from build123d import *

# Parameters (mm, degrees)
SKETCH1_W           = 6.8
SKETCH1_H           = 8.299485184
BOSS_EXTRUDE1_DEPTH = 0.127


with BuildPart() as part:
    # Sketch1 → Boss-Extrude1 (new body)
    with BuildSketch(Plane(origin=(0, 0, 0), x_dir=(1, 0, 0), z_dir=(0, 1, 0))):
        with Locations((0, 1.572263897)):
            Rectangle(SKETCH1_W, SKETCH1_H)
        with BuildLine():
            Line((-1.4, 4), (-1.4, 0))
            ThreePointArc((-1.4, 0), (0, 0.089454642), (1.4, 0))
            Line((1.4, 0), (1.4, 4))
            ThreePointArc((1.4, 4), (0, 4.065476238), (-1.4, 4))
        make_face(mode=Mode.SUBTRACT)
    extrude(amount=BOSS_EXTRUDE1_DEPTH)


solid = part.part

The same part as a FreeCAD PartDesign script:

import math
import FreeCAD as App
import Part
import Sketcher

V = App.Vector


def add_polygon(sketch, points):
    """Adds a closed chain of lines whose ends are joined by coincident constraints."""
    first, n = sketch.GeometryCount, len(points)
    for a, b in zip(points, points[1:] + points[:1]):
        sketch.addGeometry(Part.LineSegment(App.Vector(*a, 0), App.Vector(*b, 0)), False)
    for i in range(n):
        sketch.addConstraint(Sketcher.Constraint("Coincident", first + i, 2, first + (i + 1) % n, 1))

doc = App.newDocument("Part")
body = doc.addObject("PartDesign::Body", "Body")

# Sketch on XZ plane
sketch1 = body.newObject("Sketcher::SketchObject", "Sketch")
sketch1.AttachmentSupport = (doc.getObject("XZ_Plane"), [""])
sketch1.MapMode = "FlatFace"
add_polygon(sketch1, [(-3.4, -5.7), (-3.4, 2.6), (3.4, 2.6), (3.4, -5.7)])  # lines 0-3
sketch1.addGeometry(Part.LineSegment(V(-1.4, 0, 0), V(-1.4, -4, 0)), False)  # 4
sketch1.addGeometry(Part.ArcOfCircle(Part.Circle(V(0, 10.9, 0), V(0, 0, 1), 15), math.radians(-95.36), math.radians(-84.64)), False)  # 5
sketch1.addGeometry(Part.LineSegment(V(1.4, -4, 0), V(1.4, 0, 0)), False)  # 6
sketch1.addGeometry(Part.ArcOfCircle(Part.Circle(V(0, 10.9, 0), V(0, 0, 1), 11), math.radians(-97.31), math.radians(-82.69)), False)  # 7
sketch1.addConstraint([
    Sketcher.Constraint("Coincident", 4, 2, 5, 1),
    Sketcher.Constraint("Coincident", 5, 2, 6, 1),
    Sketcher.Constraint("Coincident", 6, 2, 7, 2),
    Sketcher.Constraint("Coincident", 7, 1, 4, 1),
    Sketcher.Constraint("Vertical", 0),
    Sketcher.Constraint("Horizontal", 1),
    Sketcher.Constraint("Vertical", 2),
    Sketcher.Constraint("Horizontal", 3),
    Sketcher.Constraint("Vertical", 4),
    Sketcher.Constraint("Vertical", 6),
    Sketcher.Constraint("Symmetric", 6, 2, 7, 1, -1, 1),
    Sketcher.Constraint("PointOnObject", 5, 3, -2),
    Sketcher.Constraint("PointOnObject", 7, 3, -2),
    Sketcher.Constraint("Radius", 5, 15.0),
    Sketcher.Constraint("Radius", 7, 11.0),
    Sketcher.Constraint("DistanceY", 4, 2, 4, 1, 4.0),
    Sketcher.Constraint("DistanceX", 1, 1, 1, 2, 6.8),
    Sketcher.Constraint("DistanceX", 3, 2, 4, 2, 2.0),
    Sketcher.Constraint("DistanceX", 5, 2, 2, 2, 2.0),
    Sketcher.Constraint("DistanceY", 0, 1, 0, 2, 8.299485),
    Sketcher.Constraint("DistanceY", -1, 1, 0, 2, 2.577479),
])
pad1 = body.newObject("PartDesign::Pad", "Pad")
pad1.Profile = sketch1
pad1.Length = 0.127
pad1.Reversed = True

doc.recompute()
